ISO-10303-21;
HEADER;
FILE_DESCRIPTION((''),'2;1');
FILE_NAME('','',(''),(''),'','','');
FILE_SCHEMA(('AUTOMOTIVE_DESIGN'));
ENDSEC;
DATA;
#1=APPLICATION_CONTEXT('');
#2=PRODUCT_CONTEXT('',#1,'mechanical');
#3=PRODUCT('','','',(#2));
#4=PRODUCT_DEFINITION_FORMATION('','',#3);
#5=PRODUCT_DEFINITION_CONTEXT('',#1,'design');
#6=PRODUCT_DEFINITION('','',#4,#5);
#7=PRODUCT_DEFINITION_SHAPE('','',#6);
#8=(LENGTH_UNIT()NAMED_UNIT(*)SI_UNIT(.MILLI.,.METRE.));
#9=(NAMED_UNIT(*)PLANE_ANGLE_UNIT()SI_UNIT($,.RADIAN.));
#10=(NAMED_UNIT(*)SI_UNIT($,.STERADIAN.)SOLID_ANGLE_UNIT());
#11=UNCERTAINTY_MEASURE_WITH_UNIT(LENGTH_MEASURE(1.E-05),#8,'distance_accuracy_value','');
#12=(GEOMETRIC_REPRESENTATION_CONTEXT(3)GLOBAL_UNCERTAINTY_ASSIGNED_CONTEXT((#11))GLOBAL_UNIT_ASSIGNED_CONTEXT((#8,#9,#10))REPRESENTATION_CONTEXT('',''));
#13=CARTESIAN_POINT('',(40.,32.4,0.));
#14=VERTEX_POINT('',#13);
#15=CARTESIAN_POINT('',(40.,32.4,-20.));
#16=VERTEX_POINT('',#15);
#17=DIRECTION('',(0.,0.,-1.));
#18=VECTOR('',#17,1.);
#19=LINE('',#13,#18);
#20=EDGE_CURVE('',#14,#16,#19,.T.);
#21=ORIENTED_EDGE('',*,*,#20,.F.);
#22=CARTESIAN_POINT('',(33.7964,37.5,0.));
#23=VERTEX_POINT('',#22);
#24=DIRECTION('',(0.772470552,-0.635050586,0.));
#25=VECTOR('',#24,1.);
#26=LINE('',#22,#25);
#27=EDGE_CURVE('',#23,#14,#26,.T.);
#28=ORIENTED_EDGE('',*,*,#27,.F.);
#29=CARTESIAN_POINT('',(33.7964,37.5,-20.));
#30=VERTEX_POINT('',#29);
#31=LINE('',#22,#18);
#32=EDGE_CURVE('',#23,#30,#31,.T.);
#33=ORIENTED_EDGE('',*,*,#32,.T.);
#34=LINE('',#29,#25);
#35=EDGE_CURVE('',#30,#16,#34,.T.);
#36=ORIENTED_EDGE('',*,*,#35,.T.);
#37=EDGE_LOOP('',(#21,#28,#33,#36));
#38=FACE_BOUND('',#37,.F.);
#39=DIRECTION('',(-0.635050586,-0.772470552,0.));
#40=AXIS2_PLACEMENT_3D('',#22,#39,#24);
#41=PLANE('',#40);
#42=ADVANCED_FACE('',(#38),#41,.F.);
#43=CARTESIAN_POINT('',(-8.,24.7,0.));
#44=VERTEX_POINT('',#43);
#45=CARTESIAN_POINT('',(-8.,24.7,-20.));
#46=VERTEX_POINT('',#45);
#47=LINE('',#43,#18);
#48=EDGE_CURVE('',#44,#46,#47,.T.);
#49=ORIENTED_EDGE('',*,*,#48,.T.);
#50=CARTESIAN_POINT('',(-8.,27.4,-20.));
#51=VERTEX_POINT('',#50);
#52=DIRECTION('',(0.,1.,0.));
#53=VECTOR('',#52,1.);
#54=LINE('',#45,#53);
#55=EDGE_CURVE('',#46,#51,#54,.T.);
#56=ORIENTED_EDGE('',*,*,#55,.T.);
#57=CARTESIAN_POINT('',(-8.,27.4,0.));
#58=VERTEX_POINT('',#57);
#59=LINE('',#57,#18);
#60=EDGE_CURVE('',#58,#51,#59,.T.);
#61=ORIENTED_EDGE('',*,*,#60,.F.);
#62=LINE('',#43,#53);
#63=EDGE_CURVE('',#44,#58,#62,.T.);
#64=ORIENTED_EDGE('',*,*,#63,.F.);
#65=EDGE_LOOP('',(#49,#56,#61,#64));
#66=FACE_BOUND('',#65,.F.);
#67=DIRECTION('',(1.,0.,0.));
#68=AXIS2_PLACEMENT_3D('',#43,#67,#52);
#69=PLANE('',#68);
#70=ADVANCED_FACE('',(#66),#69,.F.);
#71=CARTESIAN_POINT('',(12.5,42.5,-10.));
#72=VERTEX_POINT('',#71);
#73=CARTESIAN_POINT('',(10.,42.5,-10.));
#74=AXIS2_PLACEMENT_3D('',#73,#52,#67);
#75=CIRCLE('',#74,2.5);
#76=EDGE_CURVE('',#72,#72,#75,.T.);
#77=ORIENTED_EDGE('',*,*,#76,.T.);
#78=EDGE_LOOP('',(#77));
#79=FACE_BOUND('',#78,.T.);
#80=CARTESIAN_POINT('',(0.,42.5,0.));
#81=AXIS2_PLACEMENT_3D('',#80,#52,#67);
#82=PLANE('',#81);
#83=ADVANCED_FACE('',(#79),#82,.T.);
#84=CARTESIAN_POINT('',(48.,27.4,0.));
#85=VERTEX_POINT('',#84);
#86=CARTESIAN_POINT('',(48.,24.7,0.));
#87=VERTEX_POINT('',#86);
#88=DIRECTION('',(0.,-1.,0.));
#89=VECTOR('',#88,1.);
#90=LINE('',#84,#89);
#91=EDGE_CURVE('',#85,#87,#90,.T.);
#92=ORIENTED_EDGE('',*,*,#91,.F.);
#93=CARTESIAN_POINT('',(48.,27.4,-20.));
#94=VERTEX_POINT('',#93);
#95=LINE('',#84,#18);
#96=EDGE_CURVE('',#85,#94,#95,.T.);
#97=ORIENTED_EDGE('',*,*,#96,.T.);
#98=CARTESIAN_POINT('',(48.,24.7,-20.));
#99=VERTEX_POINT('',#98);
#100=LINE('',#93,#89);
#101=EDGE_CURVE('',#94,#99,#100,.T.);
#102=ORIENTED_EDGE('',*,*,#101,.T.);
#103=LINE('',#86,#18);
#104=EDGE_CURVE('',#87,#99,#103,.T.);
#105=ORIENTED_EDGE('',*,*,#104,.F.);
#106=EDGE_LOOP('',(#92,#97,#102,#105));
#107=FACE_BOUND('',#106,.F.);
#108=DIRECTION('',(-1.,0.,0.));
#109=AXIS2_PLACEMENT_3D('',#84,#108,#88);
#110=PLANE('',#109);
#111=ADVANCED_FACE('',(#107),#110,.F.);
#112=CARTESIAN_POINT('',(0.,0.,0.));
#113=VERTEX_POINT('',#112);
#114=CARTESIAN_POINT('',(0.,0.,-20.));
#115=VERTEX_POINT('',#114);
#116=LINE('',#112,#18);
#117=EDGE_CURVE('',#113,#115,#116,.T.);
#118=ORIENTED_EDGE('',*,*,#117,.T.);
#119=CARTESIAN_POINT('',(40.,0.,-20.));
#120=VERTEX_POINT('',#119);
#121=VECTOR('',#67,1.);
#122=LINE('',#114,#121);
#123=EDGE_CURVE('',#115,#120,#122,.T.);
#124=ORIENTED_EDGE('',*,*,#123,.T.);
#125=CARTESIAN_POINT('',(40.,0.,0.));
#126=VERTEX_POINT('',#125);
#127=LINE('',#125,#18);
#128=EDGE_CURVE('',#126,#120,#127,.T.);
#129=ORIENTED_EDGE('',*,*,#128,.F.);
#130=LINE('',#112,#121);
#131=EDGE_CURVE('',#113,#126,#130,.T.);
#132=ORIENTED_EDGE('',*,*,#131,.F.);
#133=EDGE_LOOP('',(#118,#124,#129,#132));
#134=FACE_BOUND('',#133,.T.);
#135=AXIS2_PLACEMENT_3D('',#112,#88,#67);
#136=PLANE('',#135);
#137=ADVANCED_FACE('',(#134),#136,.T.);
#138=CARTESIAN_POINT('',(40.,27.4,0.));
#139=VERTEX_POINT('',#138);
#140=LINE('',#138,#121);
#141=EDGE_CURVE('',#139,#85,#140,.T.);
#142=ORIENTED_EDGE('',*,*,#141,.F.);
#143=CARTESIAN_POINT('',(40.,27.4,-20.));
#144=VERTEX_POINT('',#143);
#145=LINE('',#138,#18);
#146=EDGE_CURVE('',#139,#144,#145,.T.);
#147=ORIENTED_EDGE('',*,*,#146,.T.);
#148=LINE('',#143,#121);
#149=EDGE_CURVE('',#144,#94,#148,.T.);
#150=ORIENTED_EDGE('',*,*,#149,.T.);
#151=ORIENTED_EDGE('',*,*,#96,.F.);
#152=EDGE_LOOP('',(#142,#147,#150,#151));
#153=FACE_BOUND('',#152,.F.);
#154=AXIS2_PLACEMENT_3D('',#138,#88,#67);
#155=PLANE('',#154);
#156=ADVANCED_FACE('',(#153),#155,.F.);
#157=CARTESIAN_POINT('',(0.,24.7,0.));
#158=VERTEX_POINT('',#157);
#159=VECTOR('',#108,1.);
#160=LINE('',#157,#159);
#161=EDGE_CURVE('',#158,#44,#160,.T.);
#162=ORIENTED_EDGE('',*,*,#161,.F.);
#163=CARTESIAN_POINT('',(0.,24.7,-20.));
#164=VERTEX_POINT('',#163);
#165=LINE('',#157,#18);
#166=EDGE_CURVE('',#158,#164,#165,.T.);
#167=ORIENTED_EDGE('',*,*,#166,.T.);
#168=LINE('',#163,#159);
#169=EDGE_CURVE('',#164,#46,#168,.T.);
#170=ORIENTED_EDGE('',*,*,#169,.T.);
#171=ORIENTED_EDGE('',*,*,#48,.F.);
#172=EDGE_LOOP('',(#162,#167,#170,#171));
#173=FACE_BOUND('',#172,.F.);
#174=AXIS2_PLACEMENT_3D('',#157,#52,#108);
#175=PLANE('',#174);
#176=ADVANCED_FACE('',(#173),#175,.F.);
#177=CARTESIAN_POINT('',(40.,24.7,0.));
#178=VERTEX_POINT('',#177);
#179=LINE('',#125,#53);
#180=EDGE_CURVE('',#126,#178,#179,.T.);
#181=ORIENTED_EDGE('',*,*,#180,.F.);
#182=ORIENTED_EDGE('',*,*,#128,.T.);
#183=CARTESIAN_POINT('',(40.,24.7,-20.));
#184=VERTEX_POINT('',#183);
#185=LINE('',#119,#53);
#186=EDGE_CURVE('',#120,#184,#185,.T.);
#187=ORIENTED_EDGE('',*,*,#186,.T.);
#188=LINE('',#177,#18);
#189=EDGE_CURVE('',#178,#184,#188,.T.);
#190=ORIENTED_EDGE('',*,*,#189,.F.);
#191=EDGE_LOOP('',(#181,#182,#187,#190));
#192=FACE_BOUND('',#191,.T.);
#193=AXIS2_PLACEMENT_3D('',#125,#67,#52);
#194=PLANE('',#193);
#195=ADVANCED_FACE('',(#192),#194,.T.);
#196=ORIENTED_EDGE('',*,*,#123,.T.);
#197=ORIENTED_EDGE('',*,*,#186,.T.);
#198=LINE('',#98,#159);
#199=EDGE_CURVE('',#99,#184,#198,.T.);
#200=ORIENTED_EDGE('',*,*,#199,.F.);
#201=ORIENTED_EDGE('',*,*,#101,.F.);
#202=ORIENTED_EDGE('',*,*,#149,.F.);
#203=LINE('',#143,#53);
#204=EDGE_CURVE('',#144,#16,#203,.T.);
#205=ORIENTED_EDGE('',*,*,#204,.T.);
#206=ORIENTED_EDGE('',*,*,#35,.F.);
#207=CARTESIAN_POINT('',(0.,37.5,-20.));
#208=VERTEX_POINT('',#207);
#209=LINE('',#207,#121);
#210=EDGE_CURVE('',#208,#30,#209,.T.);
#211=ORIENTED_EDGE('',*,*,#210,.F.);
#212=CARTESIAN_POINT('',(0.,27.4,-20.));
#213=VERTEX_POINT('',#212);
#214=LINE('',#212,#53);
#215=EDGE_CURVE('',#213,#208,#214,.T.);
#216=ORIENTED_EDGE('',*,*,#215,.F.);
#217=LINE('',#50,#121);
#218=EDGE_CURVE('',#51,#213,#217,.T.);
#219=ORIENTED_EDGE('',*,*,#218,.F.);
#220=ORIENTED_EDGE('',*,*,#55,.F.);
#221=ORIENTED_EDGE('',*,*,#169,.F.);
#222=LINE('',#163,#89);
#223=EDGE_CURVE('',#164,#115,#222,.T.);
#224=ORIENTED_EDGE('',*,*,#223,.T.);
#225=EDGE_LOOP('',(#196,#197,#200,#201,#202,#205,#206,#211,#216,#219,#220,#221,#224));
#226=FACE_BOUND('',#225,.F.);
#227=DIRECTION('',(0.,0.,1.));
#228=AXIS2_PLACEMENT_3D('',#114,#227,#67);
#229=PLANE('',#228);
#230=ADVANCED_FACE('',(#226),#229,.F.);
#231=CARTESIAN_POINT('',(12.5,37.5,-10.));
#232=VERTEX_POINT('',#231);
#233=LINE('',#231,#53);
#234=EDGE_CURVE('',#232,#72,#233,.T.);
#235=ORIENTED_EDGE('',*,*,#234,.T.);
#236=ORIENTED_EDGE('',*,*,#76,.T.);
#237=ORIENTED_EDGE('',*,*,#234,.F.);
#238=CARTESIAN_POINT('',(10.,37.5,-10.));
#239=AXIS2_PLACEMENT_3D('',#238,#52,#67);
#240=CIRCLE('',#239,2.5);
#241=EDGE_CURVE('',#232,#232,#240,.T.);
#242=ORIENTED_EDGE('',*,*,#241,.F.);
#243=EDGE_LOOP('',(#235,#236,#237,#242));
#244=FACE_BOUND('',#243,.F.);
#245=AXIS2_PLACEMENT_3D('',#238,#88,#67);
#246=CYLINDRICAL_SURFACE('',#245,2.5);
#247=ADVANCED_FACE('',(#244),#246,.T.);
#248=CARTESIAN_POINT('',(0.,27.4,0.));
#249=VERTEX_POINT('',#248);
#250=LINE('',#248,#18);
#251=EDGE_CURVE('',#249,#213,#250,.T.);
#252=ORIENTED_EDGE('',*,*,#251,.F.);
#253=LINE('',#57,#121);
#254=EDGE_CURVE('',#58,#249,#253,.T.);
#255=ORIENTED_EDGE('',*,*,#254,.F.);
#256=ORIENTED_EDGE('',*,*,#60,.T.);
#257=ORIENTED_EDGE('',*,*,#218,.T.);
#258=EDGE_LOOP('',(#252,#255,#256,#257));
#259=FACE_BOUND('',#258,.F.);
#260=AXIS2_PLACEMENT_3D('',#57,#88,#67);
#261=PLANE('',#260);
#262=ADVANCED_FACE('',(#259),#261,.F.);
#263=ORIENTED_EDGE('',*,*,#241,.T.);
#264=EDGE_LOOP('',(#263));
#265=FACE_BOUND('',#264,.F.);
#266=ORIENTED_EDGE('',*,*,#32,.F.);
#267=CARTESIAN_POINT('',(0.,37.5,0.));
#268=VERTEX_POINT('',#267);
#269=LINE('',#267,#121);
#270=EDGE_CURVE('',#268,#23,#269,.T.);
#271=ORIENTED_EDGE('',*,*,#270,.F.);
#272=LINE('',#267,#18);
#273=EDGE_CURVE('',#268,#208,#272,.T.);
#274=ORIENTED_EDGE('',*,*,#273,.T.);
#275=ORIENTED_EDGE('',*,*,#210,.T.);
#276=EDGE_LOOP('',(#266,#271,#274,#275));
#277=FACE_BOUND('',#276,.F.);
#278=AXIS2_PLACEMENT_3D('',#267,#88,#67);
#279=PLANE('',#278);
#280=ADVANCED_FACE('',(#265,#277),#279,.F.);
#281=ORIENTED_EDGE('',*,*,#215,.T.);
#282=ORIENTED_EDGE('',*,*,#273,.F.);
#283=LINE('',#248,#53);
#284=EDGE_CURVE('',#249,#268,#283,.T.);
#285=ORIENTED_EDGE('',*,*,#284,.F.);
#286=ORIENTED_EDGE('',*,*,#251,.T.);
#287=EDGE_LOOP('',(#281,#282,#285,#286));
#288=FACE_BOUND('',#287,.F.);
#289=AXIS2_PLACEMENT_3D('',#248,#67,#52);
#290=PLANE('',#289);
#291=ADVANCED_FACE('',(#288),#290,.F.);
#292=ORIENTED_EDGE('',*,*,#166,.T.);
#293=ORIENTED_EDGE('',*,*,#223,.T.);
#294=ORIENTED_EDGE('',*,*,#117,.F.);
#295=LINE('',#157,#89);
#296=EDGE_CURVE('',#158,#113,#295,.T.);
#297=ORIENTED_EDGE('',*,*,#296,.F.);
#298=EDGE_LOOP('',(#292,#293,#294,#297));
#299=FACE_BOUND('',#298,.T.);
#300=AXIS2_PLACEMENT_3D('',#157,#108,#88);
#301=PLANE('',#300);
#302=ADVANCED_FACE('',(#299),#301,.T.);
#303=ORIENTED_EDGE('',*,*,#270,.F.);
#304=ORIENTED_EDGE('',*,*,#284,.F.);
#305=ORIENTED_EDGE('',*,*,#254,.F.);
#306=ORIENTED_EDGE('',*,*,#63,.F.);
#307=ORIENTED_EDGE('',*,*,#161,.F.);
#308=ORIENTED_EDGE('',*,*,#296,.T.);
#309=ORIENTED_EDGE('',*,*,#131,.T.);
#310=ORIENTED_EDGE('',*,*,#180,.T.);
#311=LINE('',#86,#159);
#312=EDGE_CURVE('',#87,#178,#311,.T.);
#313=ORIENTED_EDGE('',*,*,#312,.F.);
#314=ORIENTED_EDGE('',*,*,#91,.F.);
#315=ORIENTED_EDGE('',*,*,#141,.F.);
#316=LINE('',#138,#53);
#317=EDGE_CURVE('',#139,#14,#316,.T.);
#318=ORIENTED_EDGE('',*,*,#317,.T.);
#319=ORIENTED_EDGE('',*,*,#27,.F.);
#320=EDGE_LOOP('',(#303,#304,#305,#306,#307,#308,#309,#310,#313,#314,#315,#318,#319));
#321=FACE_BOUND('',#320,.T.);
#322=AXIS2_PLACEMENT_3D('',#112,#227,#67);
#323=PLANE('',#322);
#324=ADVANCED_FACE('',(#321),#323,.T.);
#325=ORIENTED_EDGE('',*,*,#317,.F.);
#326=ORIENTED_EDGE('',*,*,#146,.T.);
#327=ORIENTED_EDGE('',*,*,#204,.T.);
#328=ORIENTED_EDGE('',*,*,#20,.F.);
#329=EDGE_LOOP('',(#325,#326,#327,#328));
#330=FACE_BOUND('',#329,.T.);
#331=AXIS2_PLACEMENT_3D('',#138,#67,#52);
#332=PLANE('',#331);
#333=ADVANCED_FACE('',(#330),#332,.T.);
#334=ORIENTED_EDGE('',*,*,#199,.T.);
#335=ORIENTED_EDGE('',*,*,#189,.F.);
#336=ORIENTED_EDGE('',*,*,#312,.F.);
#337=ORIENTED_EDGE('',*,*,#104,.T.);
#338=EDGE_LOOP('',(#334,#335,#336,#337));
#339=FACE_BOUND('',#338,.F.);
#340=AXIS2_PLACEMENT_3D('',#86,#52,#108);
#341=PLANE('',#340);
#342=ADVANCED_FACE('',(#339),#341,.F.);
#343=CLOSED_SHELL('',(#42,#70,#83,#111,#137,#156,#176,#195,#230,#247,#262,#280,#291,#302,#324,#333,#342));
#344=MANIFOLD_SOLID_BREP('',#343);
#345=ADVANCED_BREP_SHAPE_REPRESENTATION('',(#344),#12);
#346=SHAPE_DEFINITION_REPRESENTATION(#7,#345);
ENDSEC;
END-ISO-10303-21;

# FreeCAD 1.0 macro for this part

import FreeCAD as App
import Part
import Sketcher

V = App.Vector


def add_polygon(sketch, points):
    """Adds a closed chain of lines whose ends are joined by coincident constraints."""
    first, n = sketch.GeometryCount, len(points)
    for a, b in zip(points, points[1:] + points[:1]):
        sketch.addGeometry(Part.LineSegment(App.Vector(*a, 0), App.Vector(*b, 0)), False)
    for i in range(n):
        sketch.addConstraint(Sketcher.Constraint("Coincident", first + i, 2, first + (i + 1) % n, 1))

doc = App.newDocument("Part")
body = doc.addObject("PartDesign::Body", "Body")

sketch1 = body.newObject("Sketcher::SketchObject", "Sketch")
sketch1.AttachmentSupport = (doc.getObject("XY_Plane"), [""])
sketch1.MapMode = "FlatFace"
add_polygon(sketch1, [(0, 24.7), (0, 0), (40, 0), (40, 24.7), (48, 24.7), (48, 27.4), (40, 27.4), (40, 32.4), (33.7964, 37.5), (0, 37.5), (0, 27.4), (-8, 27.4), (-8, 24.7)])
sketch1.addConstraint([
    Sketcher.Constraint("Vertical", 0),
    Sketcher.Constraint("Horizontal", 1),
    Sketcher.Constraint("Vertical", 2),
    Sketcher.Constraint("Horizontal", 3),
    Sketcher.Constraint("Vertical", 4),
    Sketcher.Constraint("Horizontal", 5),
    Sketcher.Constraint("Vertical", 6),
    Sketcher.Constraint("Horizontal", 8),
    Sketcher.Constraint("Vertical", 9),
    Sketcher.Constraint("Horizontal", 10),
    Sketcher.Constraint("Vertical", 11),
    Sketcher.Constraint("Horizontal", 12),
    Sketcher.Constraint("Coincident", 0, 2, -1, 1),
    Sketcher.Constraint("PointOnObject", 8, 2, -2),
    Sketcher.Constraint("Horizontal", 5, 2, 9, 2),
    Sketcher.Constraint("Horizontal", 3, 2, 11, 2),
    Sketcher.Constraint("Vertical", 2, 2, 5, 2),
    Sketcher.Constraint("Equal", 5, 10),
    Sketcher.Constraint("DistanceX", 1, 1, 1, 2, 40.0),
    Sketcher.Constraint("DistanceX", 3, 1, 3, 2, 8.0),
    Sketcher.Constraint("DistanceY", 6, 1, 6, 2, 5.0),
    Sketcher.Constraint("DistanceY", 0, 2, 0, 1, 24.7),
    Sketcher.Constraint("DistanceY", 4, 1, 4, 2, 2.7),
    Sketcher.Constraint("DistanceY", -1, 1, 7, 2, 37.5),
    Sketcher.Constraint("DistanceX", 8, 2, 8, 1, 33.7964),
])
pad1 = body.newObject("PartDesign::Pad", "Pad")
pad1.Profile = sketch1
pad1.Length = 20
pad1.Reversed = True

sketch2 = body.newObject("Sketcher::SketchObject", "Sketch001")
sketch2.AttachmentSupport = (doc.getObject("XZ_Plane"), [""])
sketch2.MapMode = "FlatFace"
sketch2.AttachmentOffset = App.Placement(V(0, 0, -37.5), App.Rotation())
sketch2.addGeometry(Part.Circle(V(10, -10, 0), V(0, 0, 1), 2.5), False)
sketch2.addConstraint([
    Sketcher.Constraint("Diameter", 0, 5.0),
    Sketcher.Constraint("DistanceX", -1, 1, 0, 3, 10.0),
    Sketcher.Constraint("DistanceY", 0, 3, -1, 1, 10.0),
])
pad2 = body.newObject("PartDesign::Pad", "Pad001")
pad2.Profile = sketch2
pad2.Length = 5
pad2.Reversed = True

doc.recompute()
